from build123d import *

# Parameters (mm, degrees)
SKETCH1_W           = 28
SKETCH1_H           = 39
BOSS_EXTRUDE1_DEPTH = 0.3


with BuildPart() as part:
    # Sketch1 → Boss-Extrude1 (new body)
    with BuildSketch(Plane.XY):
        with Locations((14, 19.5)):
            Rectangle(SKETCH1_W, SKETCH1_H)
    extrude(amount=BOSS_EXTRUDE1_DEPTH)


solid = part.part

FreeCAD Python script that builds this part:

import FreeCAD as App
import Part
import Sketcher

V = App.Vector


def add_polygon(sketch, points):
    """Adds a closed chain of lines whose ends are joined by coincident constraints."""
    first, n = sketch.GeometryCount, len(points)
    for a, b in zip(points, points[1:] + points[:1]):
        sketch.addGeometry(Part.LineSegment(App.Vector(*a, 0), App.Vector(*b, 0)), False)
    for i in range(n):
        sketch.addConstraint(Sketcher.Constraint("Coincident", first + i, 2, first + (i + 1) % n, 1))

doc = App.newDocument("Part")
body = doc.addObject("PartDesign::Body", "Body")

# Sketch on XY plane
sketch1 = body.newObject("Sketcher::SketchObject", "Sketch")
sketch1.AttachmentSupport = (doc.getObject("XY_Plane"), [""])
sketch1.MapMode = "FlatFace"
add_polygon(sketch1, [(0, 39), (0, 0), (28, 0), (28, 39)])  # lines 0-3
sketch1.addConstraint(Sketcher.Constraint("Vertical", 0))
sketch1.addConstraint(Sketcher.Constraint("Horizontal", 1))
sketch1.addConstraint(Sketcher.Constraint("Vertical", 2))
sketch1.addConstraint(Sketcher.Constraint("Horizontal", 3))
sketch1.addConstraint(Sketcher.Constraint("Coincident", 0, 2, -1, 1))
sketch1.addConstraint(Sketcher.Constraint("DistanceX", 1, 1, 1, 2, 28.0))
sketch1.addConstraint(Sketcher.Constraint("DistanceY", 0, 2, 0, 1, 39.0))
pad1 = body.newObject("PartDesign::Pad", "Pad")
pad1.Profile = sketch1
pad1.Length = 0.3

doc.recompute()
